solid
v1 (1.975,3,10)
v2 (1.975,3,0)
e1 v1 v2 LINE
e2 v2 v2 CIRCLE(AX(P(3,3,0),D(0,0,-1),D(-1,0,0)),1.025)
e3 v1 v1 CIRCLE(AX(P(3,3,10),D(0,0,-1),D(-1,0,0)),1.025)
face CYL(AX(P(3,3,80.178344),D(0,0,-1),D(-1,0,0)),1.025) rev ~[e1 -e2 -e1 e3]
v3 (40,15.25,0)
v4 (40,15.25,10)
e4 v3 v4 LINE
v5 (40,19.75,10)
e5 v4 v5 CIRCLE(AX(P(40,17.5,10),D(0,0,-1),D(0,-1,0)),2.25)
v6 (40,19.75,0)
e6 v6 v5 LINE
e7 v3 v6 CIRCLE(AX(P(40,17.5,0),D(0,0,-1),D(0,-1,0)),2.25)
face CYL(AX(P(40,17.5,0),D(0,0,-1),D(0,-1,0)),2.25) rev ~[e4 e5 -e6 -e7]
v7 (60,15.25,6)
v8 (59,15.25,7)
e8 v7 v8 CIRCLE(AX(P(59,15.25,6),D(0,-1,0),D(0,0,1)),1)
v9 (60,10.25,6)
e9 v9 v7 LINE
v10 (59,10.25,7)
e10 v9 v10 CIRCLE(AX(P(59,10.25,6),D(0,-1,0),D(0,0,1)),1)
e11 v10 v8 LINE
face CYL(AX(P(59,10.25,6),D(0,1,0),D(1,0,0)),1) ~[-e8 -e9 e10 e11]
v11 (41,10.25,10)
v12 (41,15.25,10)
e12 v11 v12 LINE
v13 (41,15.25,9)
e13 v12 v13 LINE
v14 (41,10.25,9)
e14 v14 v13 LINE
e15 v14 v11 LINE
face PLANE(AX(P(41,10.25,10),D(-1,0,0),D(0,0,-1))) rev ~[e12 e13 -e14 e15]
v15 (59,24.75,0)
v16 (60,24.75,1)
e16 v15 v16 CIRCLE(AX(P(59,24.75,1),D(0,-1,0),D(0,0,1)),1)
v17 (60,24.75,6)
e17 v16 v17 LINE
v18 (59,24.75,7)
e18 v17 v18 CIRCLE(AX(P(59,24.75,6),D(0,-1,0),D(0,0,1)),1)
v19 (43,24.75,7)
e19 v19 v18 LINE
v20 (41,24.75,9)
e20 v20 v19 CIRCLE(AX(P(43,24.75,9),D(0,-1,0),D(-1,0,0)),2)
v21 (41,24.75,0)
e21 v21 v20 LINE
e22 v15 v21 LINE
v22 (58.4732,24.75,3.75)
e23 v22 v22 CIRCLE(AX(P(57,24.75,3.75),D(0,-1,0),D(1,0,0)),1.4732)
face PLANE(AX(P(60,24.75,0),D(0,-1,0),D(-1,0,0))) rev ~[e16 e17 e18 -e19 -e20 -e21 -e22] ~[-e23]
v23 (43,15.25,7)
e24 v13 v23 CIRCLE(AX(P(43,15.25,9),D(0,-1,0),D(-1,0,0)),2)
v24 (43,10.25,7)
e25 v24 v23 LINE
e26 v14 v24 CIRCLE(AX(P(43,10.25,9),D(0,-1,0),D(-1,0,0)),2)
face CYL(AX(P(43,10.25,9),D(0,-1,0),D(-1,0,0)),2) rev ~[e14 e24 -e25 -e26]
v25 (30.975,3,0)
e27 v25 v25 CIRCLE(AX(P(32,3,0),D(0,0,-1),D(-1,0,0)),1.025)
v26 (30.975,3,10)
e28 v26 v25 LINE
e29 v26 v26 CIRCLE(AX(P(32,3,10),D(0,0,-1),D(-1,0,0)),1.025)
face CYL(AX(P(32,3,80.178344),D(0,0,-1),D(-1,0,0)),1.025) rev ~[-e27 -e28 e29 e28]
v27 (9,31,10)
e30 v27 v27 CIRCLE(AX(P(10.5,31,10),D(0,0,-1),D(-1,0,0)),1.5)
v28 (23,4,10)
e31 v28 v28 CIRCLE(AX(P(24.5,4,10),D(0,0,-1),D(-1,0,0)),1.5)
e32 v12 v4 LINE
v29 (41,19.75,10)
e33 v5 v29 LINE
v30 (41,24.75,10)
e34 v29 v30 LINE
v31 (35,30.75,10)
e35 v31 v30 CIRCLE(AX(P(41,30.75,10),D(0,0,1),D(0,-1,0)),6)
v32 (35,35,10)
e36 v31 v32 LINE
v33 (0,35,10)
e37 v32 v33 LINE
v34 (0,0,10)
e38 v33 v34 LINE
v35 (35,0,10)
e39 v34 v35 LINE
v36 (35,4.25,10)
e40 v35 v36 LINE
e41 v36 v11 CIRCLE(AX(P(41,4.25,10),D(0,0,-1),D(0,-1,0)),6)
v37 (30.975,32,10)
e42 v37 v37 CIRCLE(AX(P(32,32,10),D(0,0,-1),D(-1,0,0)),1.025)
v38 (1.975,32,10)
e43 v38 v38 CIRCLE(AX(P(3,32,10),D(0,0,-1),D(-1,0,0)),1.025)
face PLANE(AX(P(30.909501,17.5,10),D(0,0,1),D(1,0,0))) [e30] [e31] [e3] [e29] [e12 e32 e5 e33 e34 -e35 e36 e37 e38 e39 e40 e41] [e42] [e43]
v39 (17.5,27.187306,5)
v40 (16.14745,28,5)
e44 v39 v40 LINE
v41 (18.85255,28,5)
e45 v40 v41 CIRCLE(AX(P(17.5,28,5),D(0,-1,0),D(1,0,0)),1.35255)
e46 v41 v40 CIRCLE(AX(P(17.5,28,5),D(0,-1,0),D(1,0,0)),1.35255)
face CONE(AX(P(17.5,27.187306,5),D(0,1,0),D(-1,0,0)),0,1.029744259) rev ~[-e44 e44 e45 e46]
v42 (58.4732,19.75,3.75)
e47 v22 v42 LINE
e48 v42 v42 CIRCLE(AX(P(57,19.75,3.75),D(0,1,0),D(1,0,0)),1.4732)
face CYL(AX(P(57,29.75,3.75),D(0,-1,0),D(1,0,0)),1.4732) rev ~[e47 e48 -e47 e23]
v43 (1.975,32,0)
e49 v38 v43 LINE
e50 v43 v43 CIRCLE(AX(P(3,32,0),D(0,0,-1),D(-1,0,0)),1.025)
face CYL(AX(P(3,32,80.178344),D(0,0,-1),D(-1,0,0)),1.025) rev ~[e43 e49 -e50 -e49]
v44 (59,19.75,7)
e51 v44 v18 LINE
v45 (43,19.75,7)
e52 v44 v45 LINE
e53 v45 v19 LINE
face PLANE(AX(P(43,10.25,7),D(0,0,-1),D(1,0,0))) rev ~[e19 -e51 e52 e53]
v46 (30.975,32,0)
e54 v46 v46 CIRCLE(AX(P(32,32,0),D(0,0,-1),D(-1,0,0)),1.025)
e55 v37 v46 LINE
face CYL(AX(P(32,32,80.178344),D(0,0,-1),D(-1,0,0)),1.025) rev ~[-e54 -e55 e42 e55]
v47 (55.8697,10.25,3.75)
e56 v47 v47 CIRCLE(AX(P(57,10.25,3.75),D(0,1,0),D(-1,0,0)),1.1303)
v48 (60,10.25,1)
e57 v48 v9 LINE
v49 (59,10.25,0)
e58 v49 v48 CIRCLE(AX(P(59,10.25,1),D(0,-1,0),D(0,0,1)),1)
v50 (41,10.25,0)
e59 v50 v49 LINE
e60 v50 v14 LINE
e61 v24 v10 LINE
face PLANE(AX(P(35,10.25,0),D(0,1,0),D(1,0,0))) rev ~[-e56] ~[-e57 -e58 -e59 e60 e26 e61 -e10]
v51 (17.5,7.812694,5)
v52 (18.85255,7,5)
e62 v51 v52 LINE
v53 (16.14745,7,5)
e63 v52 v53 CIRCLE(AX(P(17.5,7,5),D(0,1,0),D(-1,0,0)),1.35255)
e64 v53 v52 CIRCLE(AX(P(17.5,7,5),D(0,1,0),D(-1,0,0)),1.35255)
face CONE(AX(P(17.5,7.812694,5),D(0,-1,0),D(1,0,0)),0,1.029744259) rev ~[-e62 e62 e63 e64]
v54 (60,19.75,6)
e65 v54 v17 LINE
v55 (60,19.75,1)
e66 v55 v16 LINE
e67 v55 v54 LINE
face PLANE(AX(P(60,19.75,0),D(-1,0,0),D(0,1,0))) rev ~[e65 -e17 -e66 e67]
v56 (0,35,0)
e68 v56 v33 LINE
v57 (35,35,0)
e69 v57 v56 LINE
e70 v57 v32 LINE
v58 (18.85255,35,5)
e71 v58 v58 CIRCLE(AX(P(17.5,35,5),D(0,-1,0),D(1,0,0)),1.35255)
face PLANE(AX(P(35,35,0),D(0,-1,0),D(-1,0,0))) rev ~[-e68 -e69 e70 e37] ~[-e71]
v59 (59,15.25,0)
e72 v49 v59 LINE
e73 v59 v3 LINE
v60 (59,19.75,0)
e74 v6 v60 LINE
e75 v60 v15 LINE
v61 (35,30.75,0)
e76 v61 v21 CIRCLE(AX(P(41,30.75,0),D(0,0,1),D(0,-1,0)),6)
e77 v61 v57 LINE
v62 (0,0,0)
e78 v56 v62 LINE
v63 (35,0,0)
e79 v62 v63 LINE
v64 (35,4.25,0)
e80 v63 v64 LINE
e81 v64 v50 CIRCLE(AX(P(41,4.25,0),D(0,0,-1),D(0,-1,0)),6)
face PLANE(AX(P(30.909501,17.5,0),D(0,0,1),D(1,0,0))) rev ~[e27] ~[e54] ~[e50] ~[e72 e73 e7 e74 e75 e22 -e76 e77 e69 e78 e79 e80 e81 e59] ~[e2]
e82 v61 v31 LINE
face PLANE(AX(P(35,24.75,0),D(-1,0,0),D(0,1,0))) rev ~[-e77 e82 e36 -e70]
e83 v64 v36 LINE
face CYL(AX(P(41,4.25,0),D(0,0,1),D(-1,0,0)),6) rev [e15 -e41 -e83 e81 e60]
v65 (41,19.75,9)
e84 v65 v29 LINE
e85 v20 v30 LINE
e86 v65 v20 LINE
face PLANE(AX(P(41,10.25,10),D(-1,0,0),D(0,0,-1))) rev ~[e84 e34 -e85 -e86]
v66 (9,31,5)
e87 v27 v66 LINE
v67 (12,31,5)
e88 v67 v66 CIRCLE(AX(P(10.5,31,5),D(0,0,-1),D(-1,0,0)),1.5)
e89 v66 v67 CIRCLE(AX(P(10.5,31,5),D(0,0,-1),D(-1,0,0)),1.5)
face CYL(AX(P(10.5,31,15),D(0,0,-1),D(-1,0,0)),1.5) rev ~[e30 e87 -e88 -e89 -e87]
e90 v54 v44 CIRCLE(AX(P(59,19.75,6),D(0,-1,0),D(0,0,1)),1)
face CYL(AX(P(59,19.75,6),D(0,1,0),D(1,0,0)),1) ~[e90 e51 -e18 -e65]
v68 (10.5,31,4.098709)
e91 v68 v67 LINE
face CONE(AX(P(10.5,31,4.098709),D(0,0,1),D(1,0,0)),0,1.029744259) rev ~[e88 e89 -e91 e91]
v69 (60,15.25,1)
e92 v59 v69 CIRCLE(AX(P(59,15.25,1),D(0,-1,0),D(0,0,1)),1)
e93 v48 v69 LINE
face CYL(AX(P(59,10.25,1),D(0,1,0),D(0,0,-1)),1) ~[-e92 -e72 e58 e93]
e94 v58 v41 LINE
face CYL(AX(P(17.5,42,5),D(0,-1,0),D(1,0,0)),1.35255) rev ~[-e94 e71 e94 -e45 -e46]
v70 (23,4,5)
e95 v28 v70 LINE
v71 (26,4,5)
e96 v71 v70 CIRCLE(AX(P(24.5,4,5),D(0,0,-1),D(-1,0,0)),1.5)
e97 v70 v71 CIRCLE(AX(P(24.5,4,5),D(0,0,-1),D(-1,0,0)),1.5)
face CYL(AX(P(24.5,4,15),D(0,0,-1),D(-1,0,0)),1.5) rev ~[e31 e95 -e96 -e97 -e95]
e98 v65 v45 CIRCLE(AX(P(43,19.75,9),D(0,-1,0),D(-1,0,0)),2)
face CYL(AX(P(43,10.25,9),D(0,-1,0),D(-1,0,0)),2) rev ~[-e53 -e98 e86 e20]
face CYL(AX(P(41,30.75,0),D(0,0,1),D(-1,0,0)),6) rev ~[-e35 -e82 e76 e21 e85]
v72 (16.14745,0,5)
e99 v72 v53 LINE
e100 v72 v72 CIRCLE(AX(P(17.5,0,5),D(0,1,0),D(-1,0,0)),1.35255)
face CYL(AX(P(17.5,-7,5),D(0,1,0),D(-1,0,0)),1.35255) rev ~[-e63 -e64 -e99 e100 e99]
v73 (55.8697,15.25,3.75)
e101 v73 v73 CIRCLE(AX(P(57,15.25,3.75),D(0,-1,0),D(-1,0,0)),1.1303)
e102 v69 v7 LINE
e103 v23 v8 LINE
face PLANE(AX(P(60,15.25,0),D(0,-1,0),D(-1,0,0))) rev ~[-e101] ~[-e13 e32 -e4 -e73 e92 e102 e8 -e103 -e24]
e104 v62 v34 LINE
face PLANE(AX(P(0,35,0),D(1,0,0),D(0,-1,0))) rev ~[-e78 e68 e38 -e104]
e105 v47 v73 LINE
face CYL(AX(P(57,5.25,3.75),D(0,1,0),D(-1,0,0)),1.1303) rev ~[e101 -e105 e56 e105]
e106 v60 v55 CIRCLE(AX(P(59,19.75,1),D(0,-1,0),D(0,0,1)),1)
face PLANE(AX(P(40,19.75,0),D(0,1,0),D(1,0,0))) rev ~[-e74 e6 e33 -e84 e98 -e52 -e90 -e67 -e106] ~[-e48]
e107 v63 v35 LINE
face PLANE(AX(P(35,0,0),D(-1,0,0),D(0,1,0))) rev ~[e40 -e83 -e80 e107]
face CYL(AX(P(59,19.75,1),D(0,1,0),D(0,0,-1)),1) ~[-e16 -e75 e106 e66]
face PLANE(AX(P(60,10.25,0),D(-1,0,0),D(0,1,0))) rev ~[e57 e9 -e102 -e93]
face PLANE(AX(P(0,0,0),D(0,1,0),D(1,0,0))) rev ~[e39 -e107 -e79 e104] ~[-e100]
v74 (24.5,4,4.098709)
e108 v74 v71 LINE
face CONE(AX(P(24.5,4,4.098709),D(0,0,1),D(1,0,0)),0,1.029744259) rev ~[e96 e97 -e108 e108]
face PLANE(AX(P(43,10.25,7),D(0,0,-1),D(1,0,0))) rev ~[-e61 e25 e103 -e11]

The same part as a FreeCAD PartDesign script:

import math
import FreeCAD as App
import Part
import Sketcher
from FreeCAD import Vector


def edges_at(feature, points):
    """Names of the edges that pass closest to the given points."""
    edges = feature.Shape.Edges
    near = lambda p: min(range(len(edges)), key=lambda i: edges[i].distToShape(Part.Vertex(*p))[0])
    return sorted({f"Edge{near(p) + 1}" for p in points})

doc = App.newDocument("Part")
body = doc.addObject("PartDesign::Body", "Body")

# Sketch on XY plane
sketch1 = body.newObject("Sketcher::SketchObject", "Sketch")
sketch1.AttachmentSupport = (doc.getObject("XY_Plane"), [""])
sketch1.MapMode = "FlatFace"
sketch1.addGeometry(Part.LineSegment(Vector(0, 35, 0), Vector(0, 0, 0)), False)
sketch1.addGeometry(Part.LineSegment(Vector(0, 0, 0), Vector(35, 0, 0)), False)
sketch1.addGeometry(Part.LineSegment(Vector(35, 0, 0), Vector(35, 10.2, 0)), False)
sketch1.addGeometry(Part.LineSegment(Vector(35, 10.2, 0), Vector(60, 10.2, 0)), False)
sketch1.addGeometry(Part.LineSegment(Vector(60, 10.2, 0), Vector(60, 15.2, 0)), False)
sketch1.addGeometry(Part.LineSegment(Vector(60, 15.2, 0), Vector(40, 15.2, 0)), False)
sketch1.addGeometry(Part.ArcOfCircle(Part.Circle(Vector(40, 17.5, 0), Vector(0, 0, 1), 2.2), math.radians(90), math.radians(270)), False)
sketch1.addGeometry(Part.LineSegment(Vector(40, 19.8, 0), Vector(60, 19.8, 0)), False)
sketch1.addGeometry(Part.LineSegment(Vector(60, 19.8, 0), Vector(60, 24.8, 0)), False)
sketch1.addGeometry(Part.LineSegment(Vector(60, 24.8, 0), Vector(35, 24.8, 0)), False)
sketch1.addGeometry(Part.LineSegment(Vector(35, 24.8, 0), Vector(35, 35, 0)), False)
sketch1.addGeometry(Part.LineSegment(Vector(35, 35, 0), Vector(0, 35, 0)), False)
sketch1.addConstraint(Sketcher.Constraint("Coincident", 0, 2, 1, 1))
sketch1.addConstraint(Sketcher.Constraint("Coincident", 1, 2, 2, 1))
sketch1.addConstraint(Sketcher.Constraint("Coincident", 2, 2, 3, 1))
sketch1.addConstraint(Sketcher.Constraint("Coincident", 3, 2, 4, 1))
sketch1.addConstraint(Sketcher.Constraint("Coincident", 4, 2, 5, 1))
sketch1.addConstraint(Sketcher.Constraint("Tangent", 5, 2, 6, 2))
sketch1.addConstraint(Sketcher.Constraint("Tangent", 6, 1, 7, 1))
sketch1.addConstraint(Sketcher.Constraint("Coincident", 7, 2, 8, 1))
sketch1.addConstraint(Sketcher.Constraint("Coincident", 8, 2, 9, 1))
sketch1.addConstraint(Sketcher.Constraint("Coincident", 9, 2, 10, 1))
sketch1.addConstraint(Sketcher.Constraint("Coincident", 10, 2, 11, 1))
sketch1.addConstraint(Sketcher.Constraint("Coincident", 11, 2, 0, 1))
sketch1.addConstraint(Sketcher.Constraint("Vertical", 0))
sketch1.addConstraint(Sketcher.Constraint("Horizontal", 1))
sketch1.addConstraint(Sketcher.Constraint("Vertical", 2))
sketch1.addConstraint(Sketcher.Constraint("Horizontal", 3))
sketch1.addConstraint(Sketcher.Constraint("Vertical", 4))
sketch1.addConstraint(Sketcher.Constraint("Horizontal", 5))
sketch1.addConstraint(Sketcher.Constraint("Horizontal", 7))
sketch1.addConstraint(Sketcher.Constraint("Vertical", 8))
sketch1.addConstraint(Sketcher.Constraint("Horizontal", 9))
sketch1.addConstraint(Sketcher.Constraint("Vertical", 10))
sketch1.addConstraint(Sketcher.Constraint("Horizontal", 11))
sketch1.addConstraint(Sketcher.Constraint("Coincident", 0, 2, -1, 1))
sketch1.addConstraint(Sketcher.Constraint("Vertical", 4, 2, 7, 2))
sketch1.addConstraint(Sketcher.Constraint("Vertical", 2, 2, 9, 2))
sketch1.addConstraint(Sketcher.Constraint("Equal", 11, 0))
sketch1.addConstraint(Sketcher.Constraint("Equal", 4, 8))
sketch1.addConstraint(Sketcher.Constraint("Equal", 2, 10))
sketch1.addConstraint(Sketcher.Constraint("DistanceX", 1, 1, 1, 2, 35.0))
sketch1.addConstraint(Sketcher.Constraint("DistanceX", 3, 1, 3, 2, 25.0))
sketch1.addConstraint(Sketcher.Constraint("DistanceX", 5, 2, 5, 1, 20.0))
sketch1.addConstraint(Sketcher.Constraint("DistanceY", 4, 1, 4, 2, 5.0))
sketch1.addConstraint(Sketcher.Constraint("Radius", 6, 2.25))
pad1 = body.newObject("PartDesign::Pad", "Pad")
pad1.Profile = sketch1
pad1.Length = 10

# Sketch on XY plane
sketch2 = body.newObject("Sketcher::SketchObject", "Sketch001")
sketch2.AttachmentSupport = (doc.getObject("XY_Plane"), [""])
sketch2.MapMode = "FlatFace"
sketch2.AttachmentOffset = App.Placement(Vector(0, 0, 10), App.Rotation())
sketch2.addGeometry(Part.Circle(Vector(3, 32, 0), Vector(0, 0, 1), 1), False)
sketch2.addGeometry(Part.Circle(Vector(32, 32, 0), Vector(0, 0, 1), 1), False)
sketch2.addGeometry(Part.Circle(Vector(32, 3, 0), Vector(0, 0, 1), 1), False)
sketch2.addGeometry(Part.Circle(Vector(3, 3, 0), Vector(0, 0, 1), 1), False)
sketch2.addConstraint(Sketcher.Constraint("Equal", 0, 1))
sketch2.addConstraint(Sketcher.Constraint("Equal", 1, 2))
sketch2.addConstraint(Sketcher.Constraint("Equal", 2, 3))
sketch2.addConstraint(Sketcher.Constraint("Horizontal", 0, 3, 1, 3))
sketch2.addConstraint(Sketcher.Constraint("Horizontal", 2, 3, 3, 3))
sketch2.addConstraint(Sketcher.Constraint("Vertical", 1, 3, 2, 3))
sketch2.addConstraint(Sketcher.Constraint("Vertical", 0, 3, 3, 3))
sketch2.addConstraint(Sketcher.Constraint("Diameter", 0, 2.05))
sketch2.addConstraint(Sketcher.Constraint("DistanceX", -1, 1, 0, 3, 3.0))
sketch2.addConstraint(Sketcher.Constraint("DistanceY", -1, 1, 0, 3, 32.0))
sketch2.addConstraint(Sketcher.Constraint("DistanceX", -1, 1, 1, 3, 32.0))
sketch2.addConstraint(Sketcher.Constraint("DistanceY", -1, 1, 2, 3, 3.0))
doc.recompute()
hole = body.newObject("PartDesign::Hole", "Hole")
hole.Profile = sketch2
hole.ThreadType = "None"
hole.Diameter = 2.05
hole.DepthType = "ThroughAll"

# Sketch on XY plane
sketch3 = body.newObject("Sketcher::SketchObject", "Sketch002")
sketch3.AttachmentSupport = (doc.getObject("XY_Plane"), [""])
sketch3.MapMode = "FlatFace"
sketch3.AttachmentOffset = App.Placement(Vector(0, 0, 10), App.Rotation())
sketch3.addGeometry(Part.Circle(Vector(10.5, 31, 0), Vector(0, 0, 1), 1.5), False)
sketch3.addGeometry(Part.Circle(Vector(24.5, 4, 0), Vector(0, 0, 1), 1.5), False)
sketch3.addConstraint(Sketcher.Constraint("Equal", 0, 1))
sketch3.addConstraint(Sketcher.Constraint("Diameter", 0, 3.0))
sketch3.addConstraint(Sketcher.Constraint("DistanceY", -1, 1, 0, 3, 31.0))
sketch3.addConstraint(Sketcher.Constraint("DistanceY", -1, 1, 1, 3, 4.0))
sketch3.addConstraint(Sketcher.Constraint("DistanceX", 0, 3, 1, 3, 14.0))
sketch3.addConstraint(Sketcher.Constraint("DistanceX", -1, 1, 0, 3, 10.5))
doc.recompute()
hole2 = body.newObject("PartDesign::Hole", "Hole001")
hole2.Profile = sketch3
hole2.ThreadType = "None"
hole2.Diameter = 3
hole2.DepthType = "Dimension"
hole2.Depth = 5
hole2.DrillPoint = "Angled"
hole2.DrillPointAngle = 118
doc.recompute()

fillet = body.newObject("PartDesign::Fillet", "Fillet")
fillet.Base = (hole2, edges_at(hole2, [(35, 10.25, 5), (35, 24.75, 5)]))
fillet.Radius = 6

# Sketch on XZ plane
sketch4 = body.newObject("Sketcher::SketchObject", "Sketch003")
sketch4.AttachmentSupport = (doc.getObject("XZ_Plane"), [""])
sketch4.MapMode = "FlatFace"
sketch4.AttachmentOffset = App.Placement(Vector(0, 0, -10.25), App.Rotation())
sketch4.addGeometry(Part.LineSegment(Vector(43, 7, 0), Vector(60, 7, 0)), False)
sketch4.addGeometry(Part.LineSegment(Vector(60, 7, 0), Vector(60, 10, 0)), False)
sketch4.addGeometry(Part.LineSegment(Vector(60, 10, 0), Vector(41, 10, 0)), False)
sketch4.addGeometry(Part.LineSegment(Vector(41, 10, 0), Vector(41, 9, 0)), False)
sketch4.addGeometry(Part.ArcOfCircle(Part.Circle(Vector(43, 9, 0), Vector(0, 0, 1), 2), math.radians(180), math.radians(270)), False)
sketch4.addConstraint(Sketcher.Constraint("Coincident", 0, 2, 1, 1))
sketch4.addConstraint(Sketcher.Constraint("Coincident", 1, 2, 2, 1))
sketch4.addConstraint(Sketcher.Constraint("Coincident", 2, 2, 3, 1))
sketch4.addConstraint(Sketcher.Constraint("Tangent", 3, 2, 4, 1))
sketch4.addConstraint(Sketcher.Constraint("Tangent", 4, 2, 0, 1))
sketch4.addConstraint(Sketcher.Constraint("Horizontal", 0))
sketch4.addConstraint(Sketcher.Constraint("Vertical", 1))
sketch4.addConstraint(Sketcher.Constraint("Horizontal", 2))
sketch4.addConstraint(Sketcher.Constraint("Vertical", 3))
sketch4.addConstraint(Sketcher.Constraint("Radius", 4, 2.0))
sketch4.addConstraint(Sketcher.Constraint("DistanceX", 0, 1, 0, 2, 17.0))
sketch4.addConstraint(Sketcher.Constraint("DistanceY", 1, 1, 1, 2, 3.0))
sketch4.addConstraint(Sketcher.Constraint("DistanceX", -1, 1, 4, 3, 43.0))
sketch4.addConstraint(Sketcher.Constraint("DistanceY", -1, 1, 4, 3, 9.0))
pocket1 = body.newObject("PartDesign::Pocket", "Pocket")
pocket1.Profile = sketch4
pocket1.Type = "ThroughAll"
doc.recompute()

fillet2 = body.newObject("PartDesign::Fillet", "Fillet001")
fillet2.Base = (pocket1, edges_at(pocket1, [
    (60, 12.75, 7),
    (60, 22.25, 7),
    (60, 22.25, 0),
    (60, 12.75, 0),
]))
fillet2.Radius = 1

# Sketch on XZ plane
sketch5 = body.newObject("Sketcher::SketchObject", "Sketch004")
sketch5.AttachmentSupport = (doc.getObject("XZ_Plane"), [""])
sketch5.MapMode = "FlatFace"
sketch5.AttachmentOffset = App.Placement(Vector(0, 0, -24.75), App.Rotation())
sketch5.addGeometry(Part.Circle(Vector(57, 3.8, 0), Vector(0, 0, 1), 1.5), False)
sketch5.addConstraint(Sketcher.Constraint("DistanceX", -1, 1, 0, 3, 57.0))
sketch5.addConstraint(Sketcher.Constraint("Diameter", 0, 2.9464))
sketch5.addConstraint(Sketcher.Constraint("DistanceY", -1, 1, 0, 3, 3.75))
doc.recompute()
hole3 = body.newObject("PartDesign::Hole", "Hole002")
hole3.Profile = sketch5
hole3.ThreadType = "None"
hole3.Diameter = 2.9464
hole3.DepthType = "Dimension"
hole3.Depth = 5
hole3.DrillPoint = "Angled"
hole3.DrillPointAngle = 118
hole3.Reversed = True

# Sketch on XZ plane
sketch6 = body.newObject("Sketcher::SketchObject", "Sketch005")
sketch6.AttachmentSupport = (doc.getObject("XZ_Plane"), [""])
sketch6.MapMode = "FlatFace"
sketch6.AttachmentOffset = App.Placement(Vector(0, 0, -10.25), App.Rotation())
sketch6.addGeometry(Part.Circle(Vector(57, 3.8, 0), Vector(0, 0, 1), 1.1), False)
sketch6.addConstraint(Sketcher.Constraint("DistanceX", -1, 1, 0, 3, 57.0))
sketch6.addConstraint(Sketcher.Constraint("Diameter", 0, 2.2606))
sketch6.addConstraint(Sketcher.Constraint("DistanceY", -1, 1, 0, 3, 3.75))
doc.recompute()
hole4 = body.newObject("PartDesign::Hole", "Hole003")
hole4.Profile = sketch6
hole4.ThreadType = "None"
hole4.Diameter = 2.2606
hole4.DepthType = "Dimension"
hole4.Depth = 5
hole4.DrillPoint = "Angled"
hole4.DrillPointAngle = 118

# Sketch on XZ plane
sketch7 = body.newObject("Sketcher::SketchObject", "Sketch006")
sketch7.AttachmentSupport = (doc.getObject("XZ_Plane"), [""])
sketch7.MapMode = "FlatFace"
sketch7.AttachmentOffset = App.Placement(Vector(0, 0, -35), App.Rotation())
sketch7.addGeometry(Part.Circle(Vector(17.5, 5, 0), Vector(0, 0, 1), 1.4), False)
sketch7.addConstraint(Sketcher.Constraint("DistanceY", -1, 1, 0, 3, 5.0))
sketch7.addConstraint(Sketcher.Constraint("Diameter", 0, 2.7051))
sketch7.addConstraint(Sketcher.Constraint("DistanceX", -1, 1, 0, 3, 17.5))
doc.recompute()
hole5 = body.newObject("PartDesign::Hole", "Hole004")
hole5.Profile = sketch7
hole5.ThreadType = "None"
hole5.Diameter = 2.7051
hole5.DepthType = "Dimension"
hole5.Depth = 7
hole5.DrillPoint = "Angled"
hole5.DrillPointAngle = 118
hole5.Reversed = True

# Sketch on XZ plane
sketch8 = body.newObject("Sketcher::SketchObject", "Sketch007")
sketch8.AttachmentSupport = (doc.getObject("XZ_Plane"), [""])
sketch8.MapMode = "FlatFace"
sketch8.addGeometry(Part.Circle(Vector(17.5, 5, 0), Vector(0, 0, 1), 1.4), False)
sketch8.addConstraint(Sketcher.Constraint("DistanceY", -1, 1, 0, 3, 5.0))
sketch8.addConstraint(Sketcher.Constraint("Diameter", 0, 2.7051))
sketch8.addConstraint(Sketcher.Constraint("DistanceX", -1, 1, 0, 3, 17.5))
doc.recompute()
hole6 = body.newObject("PartDesign::Hole", "Hole005")
hole6.Profile = sketch8
hole6.ThreadType = "None"
hole6.Diameter = 2.7051
hole6.DepthType = "Dimension"
hole6.Depth = 7
hole6.DrillPoint = "Angled"
hole6.DrillPointAngle = 118

doc.recompute()
